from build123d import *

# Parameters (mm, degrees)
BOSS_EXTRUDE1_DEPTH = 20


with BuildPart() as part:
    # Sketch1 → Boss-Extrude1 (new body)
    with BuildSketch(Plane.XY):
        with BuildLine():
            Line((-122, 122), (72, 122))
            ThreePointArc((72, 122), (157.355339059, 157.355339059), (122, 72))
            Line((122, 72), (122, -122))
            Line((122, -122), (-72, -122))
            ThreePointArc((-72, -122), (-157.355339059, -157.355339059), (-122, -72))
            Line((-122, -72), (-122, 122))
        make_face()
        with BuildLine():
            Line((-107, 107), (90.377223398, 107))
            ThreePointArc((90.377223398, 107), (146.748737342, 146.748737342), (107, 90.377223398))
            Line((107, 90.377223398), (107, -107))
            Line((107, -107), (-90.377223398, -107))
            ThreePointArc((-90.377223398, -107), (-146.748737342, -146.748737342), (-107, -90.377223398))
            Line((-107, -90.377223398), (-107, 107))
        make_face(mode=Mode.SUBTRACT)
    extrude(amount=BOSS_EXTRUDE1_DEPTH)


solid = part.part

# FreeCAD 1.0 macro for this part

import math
import FreeCAD as App
import Part
import Sketcher
from FreeCAD import Vector
Q = App.Units.Quantity

doc = App.newDocument("Part")
body = doc.addObject("PartDesign::Body", "Body")

sketch1 = body.newObject("Sketcher::SketchObject", "Sketch")
sketch1.AttachmentSupport = (doc.getObject("XY_Plane"), [""])
sketch1.MapMode = "FlatFace"
sketch1.addGeometry(Part.LineSegment(Vector(72, 122, 0), Vector(-122, 122, 0)), False)
sketch1.addGeometry(Part.LineSegment(Vector(-122, 122, 0), Vector(-122, -72, 0)), False)
sketch1.addGeometry(Part.ArcOfCircle(Part.Circle(Vector(-122, -122, 0), Vector(0, 0, 1), 50), math.radians(90), math.radians(360)), False)
sketch1.addGeometry(Part.LineSegment(Vector(-72, -122, 0), Vector(122, -122, 0)), False)
sketch1.addGeometry(Part.LineSegment(Vector(122, -122, 0), Vector(122, 72, 0)), False)
sketch1.addGeometry(Part.ArcOfCircle(Part.Circle(Vector(122, 122, 0), Vector(0, 0, 1), 50), math.radians(-90), math.radians(180)), False)
sketch1.addGeometry(Part.LineSegment(Vector(-107, 107, 0), Vector(90.377223, 107, 0)), False)
sketch1.addGeometry(Part.ArcOfCircle(Part.Circle(Vector(122, 122, 0), Vector(0, 0, 1), 35), math.radians(-115.376934), math.radians(205.376934)), False)
sketch1.addGeometry(Part.LineSegment(Vector(107, 90.377223, 0), Vector(107, -107, 0)), False)
sketch1.addGeometry(Part.LineSegment(Vector(107, -107, 0), Vector(-90.377223, -107, 0)), False)
sketch1.addGeometry(Part.ArcOfCircle(Part.Circle(Vector(-122, -122, 0), Vector(0, 0, 1), 35), math.radians(64.623066), math.radians(385.376934)), False)
sketch1.addGeometry(Part.LineSegment(Vector(-107, -90.377223, 0), Vector(-107, 107, 0)), False)
sketch1.addConstraint(Sketcher.Constraint("Coincident", 0, 2, 1, 1))
sketch1.addConstraint(Sketcher.Constraint("Coincident", 1, 2, 2, 1))
sketch1.addConstraint(Sketcher.Constraint("Coincident", 2, 2, 3, 1))
sketch1.addConstraint(Sketcher.Constraint("Coincident", 3, 2, 4, 1))
sketch1.addConstraint(Sketcher.Constraint("Coincident", 4, 2, 5, 1))
sketch1.addConstraint(Sketcher.Constraint("Coincident", 5, 2, 0, 1))
sketch1.addConstraint(Sketcher.Constraint("Coincident", 6, 2, 7, 2))
sketch1.addConstraint(Sketcher.Constraint("Coincident", 7, 1, 8, 1))
sketch1.addConstraint(Sketcher.Constraint("Coincident", 8, 2, 9, 1))
sketch1.addConstraint(Sketcher.Constraint("Coincident", 9, 2, 10, 2))
sketch1.addConstraint(Sketcher.Constraint("Coincident", 10, 1, 11, 1))
sketch1.addConstraint(Sketcher.Constraint("Coincident", 11, 2, 6, 1))
sketch1.addConstraint(Sketcher.Constraint("Horizontal", 0))
sketch1.addConstraint(Sketcher.Constraint("Vertical", 1))
sketch1.addConstraint(Sketcher.Constraint("Horizontal", 3))
sketch1.addConstraint(Sketcher.Constraint("Vertical", 4))
sketch1.addConstraint(Sketcher.Constraint("Horizontal", 6))
sketch1.addConstraint(Sketcher.Constraint("Vertical", 8))
sketch1.addConstraint(Sketcher.Constraint("Horizontal", 9))
sketch1.addConstraint(Sketcher.Constraint("Vertical", 11))
sketch1.addConstraint(Sketcher.Constraint("Coincident", 7, 3, 5, 3))
sketch1.addConstraint(Sketcher.Constraint("Coincident", 10, 3, 2, 3))
sketch1.addConstraint(Sketcher.Constraint("Equal", 2, 5))
sketch1.addConstraint(Sketcher.Constraint("Equal", 7, 10))
sketch1.addConstraint(Sketcher.Constraint("Symmetric", 2, 3, 5, 3, -1, 1))
sketch1.addConstraint(Sketcher.Constraint("Symmetric", 0, 2, 3, 2, -1, 1))
sketch1.addConstraint(Sketcher.Constraint("Symmetric", 8, 2, 11, 2, -1, 1))
sketch1.addConstraint(Sketcher.Constraint("Horizontal", 7, 3, 0, 2))
sketch1.addConstraint(Sketcher.Constraint("Vertical", 10, 3, 0, 2))
sketch1.addConstraint(Sketcher.Constraint("Equal", 3, 1))
sketch1.addConstraint(Sketcher.Constraint("Equal", 9, 8))
sketch1.addConstraint(Sketcher.Constraint("Radius", 2, Q("50 mm")))
sketch1.addConstraint(Sketcher.Constraint("Radius", 7, Q("35 mm")))
sketch1.addConstraint(Sketcher.Constraint("DistanceX", 0, 2, 0, 1, Q("194 mm")))
sketch1.addConstraint(Sketcher.Constraint("DistanceY", -1, 1, 6, 2, Q("107 mm")))
pad1 = body.newObject("PartDesign::Pad", "Pad")
pad1.Profile = sketch1
pad1.Length = 20

doc.recompute()
